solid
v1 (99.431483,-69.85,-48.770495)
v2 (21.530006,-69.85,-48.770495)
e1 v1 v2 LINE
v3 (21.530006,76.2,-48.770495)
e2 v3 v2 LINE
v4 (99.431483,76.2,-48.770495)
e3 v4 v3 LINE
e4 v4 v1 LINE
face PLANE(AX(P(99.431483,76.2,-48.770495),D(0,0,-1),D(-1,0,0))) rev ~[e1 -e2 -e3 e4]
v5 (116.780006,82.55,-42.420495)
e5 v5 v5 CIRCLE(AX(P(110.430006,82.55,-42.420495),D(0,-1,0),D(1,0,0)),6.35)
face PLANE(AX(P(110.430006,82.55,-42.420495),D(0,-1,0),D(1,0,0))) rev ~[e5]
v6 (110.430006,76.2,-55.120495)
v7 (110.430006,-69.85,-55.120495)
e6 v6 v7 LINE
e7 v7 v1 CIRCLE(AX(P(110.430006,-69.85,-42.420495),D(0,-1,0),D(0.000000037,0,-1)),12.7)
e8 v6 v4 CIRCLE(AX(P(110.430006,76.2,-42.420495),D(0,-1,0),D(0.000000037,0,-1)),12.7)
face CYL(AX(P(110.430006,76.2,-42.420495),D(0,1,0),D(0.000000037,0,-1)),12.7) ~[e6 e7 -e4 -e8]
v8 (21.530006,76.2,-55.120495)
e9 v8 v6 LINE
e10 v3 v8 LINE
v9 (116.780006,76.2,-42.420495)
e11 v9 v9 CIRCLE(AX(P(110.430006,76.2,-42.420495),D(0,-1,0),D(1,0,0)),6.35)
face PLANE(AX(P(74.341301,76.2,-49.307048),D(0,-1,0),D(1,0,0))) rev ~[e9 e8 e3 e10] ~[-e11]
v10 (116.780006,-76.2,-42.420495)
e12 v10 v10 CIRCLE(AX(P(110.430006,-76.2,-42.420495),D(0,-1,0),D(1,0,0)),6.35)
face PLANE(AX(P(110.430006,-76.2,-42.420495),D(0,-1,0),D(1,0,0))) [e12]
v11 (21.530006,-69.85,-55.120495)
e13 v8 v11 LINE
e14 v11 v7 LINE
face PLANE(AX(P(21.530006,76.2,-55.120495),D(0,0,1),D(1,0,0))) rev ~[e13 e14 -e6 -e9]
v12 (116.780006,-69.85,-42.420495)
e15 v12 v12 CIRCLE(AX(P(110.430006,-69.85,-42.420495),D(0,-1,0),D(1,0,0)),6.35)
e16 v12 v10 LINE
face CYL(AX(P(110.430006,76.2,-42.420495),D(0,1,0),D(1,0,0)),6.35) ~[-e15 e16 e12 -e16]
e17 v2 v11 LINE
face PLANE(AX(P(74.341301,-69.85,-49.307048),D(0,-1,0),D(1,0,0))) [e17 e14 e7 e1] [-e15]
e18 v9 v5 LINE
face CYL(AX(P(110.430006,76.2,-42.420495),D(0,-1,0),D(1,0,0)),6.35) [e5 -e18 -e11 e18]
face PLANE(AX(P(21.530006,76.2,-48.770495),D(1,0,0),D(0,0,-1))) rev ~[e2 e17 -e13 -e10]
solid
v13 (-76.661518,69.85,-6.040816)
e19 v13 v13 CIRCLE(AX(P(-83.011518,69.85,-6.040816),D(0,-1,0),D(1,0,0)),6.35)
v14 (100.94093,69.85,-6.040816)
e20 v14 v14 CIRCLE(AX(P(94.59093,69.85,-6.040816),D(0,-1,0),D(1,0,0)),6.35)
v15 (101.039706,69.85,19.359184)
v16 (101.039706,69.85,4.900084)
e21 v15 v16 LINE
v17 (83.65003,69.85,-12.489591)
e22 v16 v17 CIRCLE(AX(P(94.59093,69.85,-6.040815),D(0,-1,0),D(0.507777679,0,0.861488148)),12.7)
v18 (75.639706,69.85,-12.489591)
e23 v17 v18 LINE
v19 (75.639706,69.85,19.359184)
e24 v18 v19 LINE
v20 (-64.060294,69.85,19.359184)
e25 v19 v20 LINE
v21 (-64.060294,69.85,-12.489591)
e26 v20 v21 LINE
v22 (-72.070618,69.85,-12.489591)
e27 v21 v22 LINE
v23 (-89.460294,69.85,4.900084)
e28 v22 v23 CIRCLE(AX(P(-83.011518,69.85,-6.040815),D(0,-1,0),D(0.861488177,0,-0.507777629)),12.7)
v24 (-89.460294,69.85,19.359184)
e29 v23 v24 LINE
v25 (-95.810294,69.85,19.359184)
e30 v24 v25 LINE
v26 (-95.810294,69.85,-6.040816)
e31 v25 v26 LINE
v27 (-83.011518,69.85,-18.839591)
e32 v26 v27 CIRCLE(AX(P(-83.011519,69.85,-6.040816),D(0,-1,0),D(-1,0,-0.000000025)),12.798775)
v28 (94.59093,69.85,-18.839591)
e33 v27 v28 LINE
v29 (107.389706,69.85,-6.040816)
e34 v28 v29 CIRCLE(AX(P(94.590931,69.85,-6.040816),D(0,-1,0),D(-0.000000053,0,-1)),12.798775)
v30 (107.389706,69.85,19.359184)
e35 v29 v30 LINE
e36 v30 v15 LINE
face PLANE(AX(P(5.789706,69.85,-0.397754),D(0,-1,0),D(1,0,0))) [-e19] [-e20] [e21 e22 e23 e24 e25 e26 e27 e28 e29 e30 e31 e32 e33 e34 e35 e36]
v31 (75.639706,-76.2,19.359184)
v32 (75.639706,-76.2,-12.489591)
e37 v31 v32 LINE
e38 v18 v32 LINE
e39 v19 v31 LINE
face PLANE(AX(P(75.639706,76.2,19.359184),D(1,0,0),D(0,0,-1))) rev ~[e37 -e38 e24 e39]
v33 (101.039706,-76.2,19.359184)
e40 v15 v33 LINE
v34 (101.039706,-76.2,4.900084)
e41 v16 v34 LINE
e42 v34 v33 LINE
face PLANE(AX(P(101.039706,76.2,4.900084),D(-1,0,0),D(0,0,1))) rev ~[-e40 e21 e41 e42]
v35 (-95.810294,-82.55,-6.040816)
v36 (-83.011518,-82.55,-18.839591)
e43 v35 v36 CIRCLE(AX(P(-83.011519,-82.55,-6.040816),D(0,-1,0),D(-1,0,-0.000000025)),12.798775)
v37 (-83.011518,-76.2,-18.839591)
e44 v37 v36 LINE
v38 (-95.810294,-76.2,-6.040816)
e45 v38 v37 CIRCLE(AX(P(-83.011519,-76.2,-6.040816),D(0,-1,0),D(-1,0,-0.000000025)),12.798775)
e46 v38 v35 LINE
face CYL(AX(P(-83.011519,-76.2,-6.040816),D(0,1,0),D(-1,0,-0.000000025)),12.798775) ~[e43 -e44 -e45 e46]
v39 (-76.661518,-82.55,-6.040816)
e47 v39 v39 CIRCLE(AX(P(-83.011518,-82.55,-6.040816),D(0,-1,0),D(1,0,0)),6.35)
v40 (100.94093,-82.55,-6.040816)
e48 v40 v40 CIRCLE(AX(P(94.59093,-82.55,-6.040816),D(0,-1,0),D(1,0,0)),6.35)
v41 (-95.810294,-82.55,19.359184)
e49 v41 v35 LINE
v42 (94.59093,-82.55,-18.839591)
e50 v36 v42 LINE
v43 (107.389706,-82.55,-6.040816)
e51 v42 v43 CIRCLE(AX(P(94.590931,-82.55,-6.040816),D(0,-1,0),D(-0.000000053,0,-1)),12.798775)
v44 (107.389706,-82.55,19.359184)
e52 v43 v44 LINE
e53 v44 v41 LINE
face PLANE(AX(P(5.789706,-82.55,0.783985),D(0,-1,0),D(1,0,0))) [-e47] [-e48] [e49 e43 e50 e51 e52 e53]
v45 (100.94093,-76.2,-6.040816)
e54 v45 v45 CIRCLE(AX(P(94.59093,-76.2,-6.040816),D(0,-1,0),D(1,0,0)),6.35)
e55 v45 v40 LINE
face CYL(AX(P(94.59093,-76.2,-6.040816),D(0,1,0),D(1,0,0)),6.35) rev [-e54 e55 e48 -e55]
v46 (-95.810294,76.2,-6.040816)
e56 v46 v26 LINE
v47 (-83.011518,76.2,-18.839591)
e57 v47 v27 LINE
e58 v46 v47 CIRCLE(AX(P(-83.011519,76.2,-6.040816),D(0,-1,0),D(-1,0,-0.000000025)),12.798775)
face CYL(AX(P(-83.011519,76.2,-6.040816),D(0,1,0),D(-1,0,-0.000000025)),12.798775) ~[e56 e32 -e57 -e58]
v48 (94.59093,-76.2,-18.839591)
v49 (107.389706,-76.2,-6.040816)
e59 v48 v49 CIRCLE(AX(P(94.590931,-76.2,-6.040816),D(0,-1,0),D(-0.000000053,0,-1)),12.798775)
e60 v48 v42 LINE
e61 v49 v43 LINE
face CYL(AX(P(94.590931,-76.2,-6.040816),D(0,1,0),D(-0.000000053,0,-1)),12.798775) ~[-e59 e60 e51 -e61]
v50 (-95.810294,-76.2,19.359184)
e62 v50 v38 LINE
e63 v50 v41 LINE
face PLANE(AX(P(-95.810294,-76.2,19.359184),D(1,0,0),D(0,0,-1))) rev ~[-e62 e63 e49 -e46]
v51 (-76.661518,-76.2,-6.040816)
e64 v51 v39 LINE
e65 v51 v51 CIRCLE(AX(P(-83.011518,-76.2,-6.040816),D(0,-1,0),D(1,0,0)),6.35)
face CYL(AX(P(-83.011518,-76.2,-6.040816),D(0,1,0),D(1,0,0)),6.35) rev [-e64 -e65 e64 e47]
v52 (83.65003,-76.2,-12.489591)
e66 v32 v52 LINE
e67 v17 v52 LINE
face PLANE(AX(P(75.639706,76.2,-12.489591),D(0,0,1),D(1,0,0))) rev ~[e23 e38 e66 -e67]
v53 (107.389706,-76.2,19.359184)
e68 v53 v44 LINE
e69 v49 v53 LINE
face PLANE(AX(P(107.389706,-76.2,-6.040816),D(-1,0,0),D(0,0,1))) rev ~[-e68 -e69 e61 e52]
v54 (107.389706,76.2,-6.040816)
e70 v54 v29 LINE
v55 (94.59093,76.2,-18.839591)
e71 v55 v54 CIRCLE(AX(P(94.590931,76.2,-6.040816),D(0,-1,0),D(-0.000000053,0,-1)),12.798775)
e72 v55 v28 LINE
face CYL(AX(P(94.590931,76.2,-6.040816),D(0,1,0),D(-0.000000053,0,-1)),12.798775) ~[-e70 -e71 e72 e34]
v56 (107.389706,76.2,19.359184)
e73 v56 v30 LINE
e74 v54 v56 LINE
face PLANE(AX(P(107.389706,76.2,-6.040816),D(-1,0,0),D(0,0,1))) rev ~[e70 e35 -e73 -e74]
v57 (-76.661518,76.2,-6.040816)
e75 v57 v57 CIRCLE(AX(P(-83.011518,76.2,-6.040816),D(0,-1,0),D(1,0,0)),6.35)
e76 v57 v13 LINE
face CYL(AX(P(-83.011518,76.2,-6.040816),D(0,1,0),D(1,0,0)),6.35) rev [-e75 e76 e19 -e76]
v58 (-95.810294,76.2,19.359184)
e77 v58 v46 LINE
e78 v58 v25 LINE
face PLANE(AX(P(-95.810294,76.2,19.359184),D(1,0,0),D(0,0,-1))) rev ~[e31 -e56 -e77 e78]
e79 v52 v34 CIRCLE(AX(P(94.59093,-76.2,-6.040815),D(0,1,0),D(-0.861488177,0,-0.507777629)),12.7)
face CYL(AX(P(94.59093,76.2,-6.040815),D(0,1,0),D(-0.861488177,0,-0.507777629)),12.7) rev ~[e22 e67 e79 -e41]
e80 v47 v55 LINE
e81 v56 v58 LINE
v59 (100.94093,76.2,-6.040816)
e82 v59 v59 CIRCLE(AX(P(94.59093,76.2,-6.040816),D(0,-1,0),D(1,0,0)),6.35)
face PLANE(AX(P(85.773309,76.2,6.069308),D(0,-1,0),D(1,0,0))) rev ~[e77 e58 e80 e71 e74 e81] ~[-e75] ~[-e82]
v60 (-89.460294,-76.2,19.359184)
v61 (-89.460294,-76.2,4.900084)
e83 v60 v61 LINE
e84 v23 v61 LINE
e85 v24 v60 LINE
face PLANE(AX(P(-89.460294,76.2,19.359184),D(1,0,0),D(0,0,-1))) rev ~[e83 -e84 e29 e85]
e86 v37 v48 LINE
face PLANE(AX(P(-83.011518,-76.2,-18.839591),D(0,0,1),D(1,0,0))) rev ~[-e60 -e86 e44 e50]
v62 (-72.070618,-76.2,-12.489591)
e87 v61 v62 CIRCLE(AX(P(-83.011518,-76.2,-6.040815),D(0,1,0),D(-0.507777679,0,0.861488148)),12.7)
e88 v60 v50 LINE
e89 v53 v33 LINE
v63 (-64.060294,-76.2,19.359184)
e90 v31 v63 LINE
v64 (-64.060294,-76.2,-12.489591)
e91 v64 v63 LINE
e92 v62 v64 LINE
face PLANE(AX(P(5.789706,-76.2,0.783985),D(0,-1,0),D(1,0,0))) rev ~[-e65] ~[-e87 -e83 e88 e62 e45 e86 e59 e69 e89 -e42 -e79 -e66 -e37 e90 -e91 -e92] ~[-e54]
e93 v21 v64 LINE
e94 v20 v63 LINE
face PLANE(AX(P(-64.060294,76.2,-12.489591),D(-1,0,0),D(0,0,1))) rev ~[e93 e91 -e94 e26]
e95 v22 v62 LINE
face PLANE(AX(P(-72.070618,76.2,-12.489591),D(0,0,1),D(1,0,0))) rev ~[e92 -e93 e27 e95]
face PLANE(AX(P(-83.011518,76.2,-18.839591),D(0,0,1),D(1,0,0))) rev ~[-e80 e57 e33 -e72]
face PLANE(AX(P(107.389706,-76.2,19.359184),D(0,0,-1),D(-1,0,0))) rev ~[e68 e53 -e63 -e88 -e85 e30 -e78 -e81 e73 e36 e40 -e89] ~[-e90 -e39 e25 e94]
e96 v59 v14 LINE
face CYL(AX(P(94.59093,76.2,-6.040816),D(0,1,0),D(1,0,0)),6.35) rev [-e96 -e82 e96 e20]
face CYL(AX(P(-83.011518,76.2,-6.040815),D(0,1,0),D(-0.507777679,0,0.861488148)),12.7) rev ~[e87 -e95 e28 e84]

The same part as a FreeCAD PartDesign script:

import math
import FreeCAD as App
import Part
import Sketcher

V = App.Vector
Q = App.Units.Quantity

doc = App.newDocument("Part")
body = doc.addObject("PartDesign::Body", "Body")

# Sketch on XZ plane
sketch1 = body.newObject("Sketcher::SketchObject", "Sketch")
sketch1.AttachmentSupport = (doc.getObject("XZ_Plane"), [""])
sketch1.MapMode = "FlatFace"
sketch1.AttachmentOffset = App.Placement(V(0, 0, -3 * 25.4), App.Rotation())
sketch1.addGeometry([
    Part.LineSegment(V(-89, 19, 0), V(-96, 19, 0)),  # 0
    Part.LineSegment(V(-96, 19, 0), V(-96, -6, 0)),  # 1
    Part.ArcOfCircle(Part.Circle(V(-83, -6, 0), V(0, 0, 1), 13), math.radians(-180), math.radians(-90)),  # 2
    Part.LineSegment(V(-83, -19, 0), V(95, -19, 0)),  # 3
    Part.ArcOfCircle(Part.Circle(V(95, -6, 0), V(0, 0, 1), 13), math.radians(-90), math.radians(0)),  # 4
    Part.LineSegment(V(107, -6, 0), V(107, 19, 0)),  # 5
    Part.LineSegment(V(107, 19, 0), V(101, 19, 0)),  # 6
    Part.LineSegment(V(101, 19, 0), V(101, 5, 0)),  # 7
    Part.ArcOfCircle(Part.Circle(V(95, -6, 0), V(0, 0, 1), 13), math.radians(59), math.radians(211)),  # 8
    Part.LineSegment(V(84, -12, 0), V(76, -12, 0)),  # 9
    Part.LineSegment(V(76, -12, 0), V(76, 19, 0)),  # 10
    Part.LineSegment(V(76, 19, 0), V(-64, 19, 0)),  # 11
    Part.LineSegment(V(-64, 19, 0), V(-64, -12, 0)),  # 12
    Part.LineSegment(V(-64, -12, 0), V(-72, -12, 0)),  # 13
    Part.ArcOfCircle(Part.Circle(V(-83, -6, 0), V(0, 0, 1), 13), math.radians(-31), math.radians(121)),  # 14
    Part.LineSegment(V(-89, 5, 0), V(-89, 19, 0)),  # 15
    Part.Circle(V(-83, -6, 0), V(0, 0, 1), 6),  # 16
    Part.Circle(V(95, -6, 0), V(0, 0, 1), 6),  # 17
], False)
sketch1.addConstraint([
    Sketcher.Constraint("Coincident", 0, 2, 1, 1),
    Sketcher.Constraint("Tangent", 1, 2, 2, 1),
    Sketcher.Constraint("Tangent", 2, 2, 3, 1),
    Sketcher.Constraint("Tangent", 3, 2, 4, 1),
    Sketcher.Constraint("Tangent", 4, 2, 5, 1),
    Sketcher.Constraint("Coincident", 5, 2, 6, 1),
    Sketcher.Constraint("Coincident", 6, 2, 7, 1),
    Sketcher.Constraint("Coincident", 7, 2, 8, 1),
    Sketcher.Constraint("Coincident", 8, 2, 9, 1),
    Sketcher.Constraint("Coincident", 9, 2, 10, 1),
    Sketcher.Constraint("Coincident", 10, 2, 11, 1),
    Sketcher.Constraint("Coincident", 11, 2, 12, 1),
    Sketcher.Constraint("Coincident", 12, 2, 13, 1),
    Sketcher.Constraint("Coincident", 13, 2, 14, 1),
    Sketcher.Constraint("Coincident", 14, 2, 15, 1),
    Sketcher.Constraint("Coincident", 15, 2, 0, 1),
    Sketcher.Constraint("Horizontal", 0),
    Sketcher.Constraint("Vertical", 1),
    Sketcher.Constraint("Horizontal", 3),
    Sketcher.Constraint("Vertical", 5),
    Sketcher.Constraint("Horizontal", 6),
    Sketcher.Constraint("Vertical", 7),
    Sketcher.Constraint("Horizontal", 9),
    Sketcher.Constraint("Vertical", 10),
    Sketcher.Constraint("Horizontal", 11),
    Sketcher.Constraint("Vertical", 12),
    Sketcher.Constraint("Horizontal", 13),
    Sketcher.Constraint("Vertical", 15),
    Sketcher.Constraint("Coincident", 8, 3, 4, 3),
    Sketcher.Constraint("Coincident", 14, 3, 2, 3),
    Sketcher.Constraint("Coincident", 16, 3, 2, 3),
    Sketcher.Constraint("Coincident", 17, 3, 4, 3),
    Sketcher.Constraint("Equal", 2, 4),
    Sketcher.Constraint("Equal", 8, 14),
    Sketcher.Constraint("Equal", 16, 17),
    Sketcher.Constraint("Horizontal", 0, 2, 5, 2),
    Sketcher.Constraint("Horizontal", 6, 2, 10, 2),
    Sketcher.Constraint("Horizontal", 9, 2, 12, 2),
    Sketcher.Constraint("Horizontal", 7, 2, 14, 2),
    Sketcher.Constraint("Equal", 9, 13),
    Sketcher.Constraint("Diameter", 16, Q("0.5 in")),
    Sketcher.Constraint("Radius", 8, Q("0.5 in")),
    Sketcher.Constraint("DistanceY", 1, 2, 1, 1, Q("1 in")),
    Sketcher.Constraint("DistanceX", 11, 2, 11, 1, Q("5.5 in")),
    Sketcher.Constraint("DistanceX", 10, 2, 6, 2, Q("1 in")),
    Sketcher.Constraint("DistanceX", 0, 2, 0, 1, Q("0.25 in")),
    Sketcher.Constraint("DistanceY", 3, 2, 8, 2, Q("0.25 in")),
    Sketcher.Constraint("DistanceY", 7, 2, 7, 1, Q("14.4591 mm")),
    Sketcher.Constraint("DistanceX", 2, 3, -1, 1, Q("83.011519 mm")),
    Sketcher.Constraint("DistanceY", 2, 2, -1, 1, Q("18.839591 mm")),
])
pad1 = body.newObject("PartDesign::Pad", "Pad")
pad1.Profile = sketch1
pad1.Length = Q("0.25 in")

# Sketch on XZ plane
sketch2 = body.newObject("Sketcher::SketchObject", "Sketch001")
sketch2.AttachmentSupport = (doc.getObject("XZ_Plane"), [""])
sketch2.MapMode = "FlatFace"
sketch2.AttachmentOffset = App.Placement(V(0, 0, -3 * 25.4), App.Rotation())
sketch2.addGeometry([
    Part.LineSegment(V(-64, 19, 0), V(-89, 19, 0)),  # 0
    Part.LineSegment(V(-89, 19, 0), V(-89, 5, 0)),  # 1
    Part.ArcOfCircle(Part.Circle(V(-83, -6, 0), V(0, 0, 1), 13), math.radians(-31), math.radians(121)),  # 2
    Part.LineSegment(V(-72, -12, 0), V(-64, -12, 0)),  # 3
    Part.LineSegment(V(-64, -12, 0), V(-64, 19, 0)),  # 4
], False)
sketch2.addConstraint([
    Sketcher.Constraint("Coincident", 0, 2, 1, 1),
    Sketcher.Constraint("Coincident", 1, 2, 2, 2),
    Sketcher.Constraint("Coincident", 2, 1, 3, 1),
    Sketcher.Constraint("Coincident", 3, 2, 4, 1),
    Sketcher.Constraint("Coincident", 4, 2, 0, 1),
    Sketcher.Constraint("Horizontal", 0),
    Sketcher.Constraint("Vertical", 1),
    Sketcher.Constraint("Horizontal", 3),
    Sketcher.Constraint("Vertical", 4),
    Sketcher.Constraint("Radius", 2, Q("0.5 in")),
    Sketcher.Constraint("DistanceX", 0, 2, 0, 1, Q("1 in")),
    Sketcher.Constraint("DistanceY", 2, 3, 0, 2, Q("1 in")),
    Sketcher.Constraint("DistanceY", 1, 2, 1, 1, Q("14.4591 mm")),
    Sketcher.Constraint("DistanceX", 2, 3, 2, 1, Q("10.9409 mm")),
    Sketcher.Constraint("DistanceY", 2, 1, -1, 1, Q("12.489591 mm")),
    Sketcher.Constraint("DistanceX", 2, 3, -1, 1, Q("83.011518 mm")),
])
pad2 = body.newObject("PartDesign::Pad", "Pad001")
pad2.Profile = sketch2
pad2.Length = Q("6 in")

# Sketch on XZ plane
sketch3 = body.newObject("Sketcher::SketchObject", "Sketch002")
sketch3.AttachmentSupport = (doc.getObject("XZ_Plane"), [""])
sketch3.MapMode = "FlatFace"
sketch3.AttachmentOffset = App.Placement(V(0, 0, -3 * 25.4), App.Rotation())
sketch3.addGeometry([
    Part.LineSegment(V(101, 19, 0), V(76, 19, 0)),  # 0
    Part.LineSegment(V(76, 19, 0), V(76, -12, 0)),  # 1
    Part.LineSegment(V(76, -12, 0), V(84, -12, 0)),  # 2
    Part.ArcOfCircle(Part.Circle(V(95, -6, 0), V(0, 0, 1), 13), math.radians(59), math.radians(211)),  # 3
    Part.LineSegment(V(101, 5, 0), V(101, 19, 0)),  # 4
], False)
sketch3.addConstraint([
    Sketcher.Constraint("Coincident", 0, 2, 1, 1),
    Sketcher.Constraint("Coincident", 1, 2, 2, 1),
    Sketcher.Constraint("Coincident", 2, 2, 3, 2),
    Sketcher.Constraint("Coincident", 3, 1, 4, 1),
    Sketcher.Constraint("Coincident", 4, 2, 0, 1),
    Sketcher.Constraint("Horizontal", 0),
    Sketcher.Constraint("Vertical", 1),
    Sketcher.Constraint("Horizontal", 2),
    Sketcher.Constraint("Vertical", 4),
    Sketcher.Constraint("Radius", 3, Q("0.5 in")),
    Sketcher.Constraint("DistanceX", 0, 2, 0, 1, Q("1 in")),
    Sketcher.Constraint("DistanceY", 3, 3, 0, 2, Q("1 in")),
    Sketcher.Constraint("DistanceY", 4, 1, 4, 2, Q("14.4591 mm")),
    Sketcher.Constraint("DistanceX", 2, 2, 3, 3, Q("10.9409 mm")),
    Sketcher.Constraint("DistanceX", -1, 1, 3, 3, Q("94.59093 mm")),
    Sketcher.Constraint("DistanceY", 1, 2, -1, 1, Q("12.489591 mm")),
])
pad3 = body.newObject("PartDesign::Pad", "Pad002")
pad3.Profile = sketch3
pad3.Length = Q("6 in")

# Sketch on XZ plane
sketch4 = body.newObject("Sketcher::SketchObject", "Sketch003")
sketch4.AttachmentSupport = (doc.getObject("XZ_Plane"), [""])
sketch4.MapMode = "FlatFace"
sketch4.AttachmentOffset = App.Placement(V(0, 0, 3 * 25.4), App.Rotation())
sketch4.addGeometry([
    Part.LineSegment(V(-96, 19, 0), V(-96, -6, 0)),  # 0
    Part.ArcOfCircle(Part.Circle(V(-83, -6, 0), V(0, 0, 1), 13), math.radians(-180), math.radians(-90)),  # 1
    Part.LineSegment(V(-83, -19, 0), V(95, -19, 0)),  # 2
    Part.ArcOfCircle(Part.Circle(V(95, -6, 0), V(0, 0, 1), 13), math.radians(-90), math.radians(0)),  # 3
    Part.LineSegment(V(107, -6, 0), V(107, 19, 0)),  # 4
    Part.LineSegment(V(107, 19, 0), V(-96, 19, 0)),  # 5
    Part.Circle(V(-83, -6, 0), V(0, 0, 1), 6),  # 6
    Part.Circle(V(95, -6, 0), V(0, 0, 1), 6),  # 7
], False)
sketch4.addConstraint([
    Sketcher.Constraint("Tangent", 0, 2, 1, 1),
    Sketcher.Constraint("Tangent", 1, 2, 2, 1),
    Sketcher.Constraint("Tangent", 2, 2, 3, 1),
    Sketcher.Constraint("Tangent", 3, 2, 4, 1),
    Sketcher.Constraint("Coincident", 4, 2, 5, 1),
    Sketcher.Constraint("Coincident", 5, 2, 0, 1),
    Sketcher.Constraint("Vertical", 0),
    Sketcher.Constraint("Horizontal", 2),
    Sketcher.Constraint("Vertical", 4),
    Sketcher.Constraint("Horizontal", 5),
    Sketcher.Constraint("Coincident", 6, 3, 1, 3),
    Sketcher.Constraint("Coincident", 7, 3, 3, 3),
    Sketcher.Constraint("Equal", 1, 3),
    Sketcher.Constraint("Equal", 6, 7),
    Sketcher.Constraint("Diameter", 6, Q("0.5 in")),
    Sketcher.Constraint("DistanceX", 5, 2, 5, 1, Q("8 in")),
    Sketcher.Constraint("DistanceY", 0, 2, 0, 1, Q("1 in")),
    Sketcher.Constraint("Radius", 1, Q("12.798775 mm")),
    Sketcher.Constraint("DistanceX", 1, 3, -1, 1, Q("83.011519 mm")),
    Sketcher.Constraint("DistanceY", 1, 2, -1, 1, Q("18.839591 mm")),
])
pad4 = body.newObject("PartDesign::Pad", "Pad003")
pad4.Profile = sketch4
pad4.Length = Q("0.25 in")
body2 = doc.addObject("PartDesign::Body", "Body001")

# Sketch on XZ plane
sketch5 = body2.newObject("Sketcher::SketchObject", "Sketch004")
sketch5.AttachmentSupport = (doc.getObject("XZ_Plane001"), [""])
sketch5.MapMode = "FlatFace"
sketch5.AttachmentOffset = App.Placement(V(0, 0, -3 * 25.4), App.Rotation())
sketch5.addGeometry([
    Part.LineSegment(V(22, -55, 0), V(110, -55, 0)),  # 0
    Part.ArcOfCircle(Part.Circle(V(110, -42, 0), V(0, 0, 1), 13), math.radians(-90), math.radians(210)),  # 1
    Part.LineSegment(V(99, -49, 0), V(22, -49, 0)),  # 2
    Part.LineSegment(V(22, -49, 0), V(22, -55, 0)),  # 3
    Part.Circle(V(110, -42, 0), V(0, 0, 1), 6),  # 4
], False)
sketch5.addConstraint([
    Sketcher.Constraint("Tangent", 0, 2, 1, 1),
    Sketcher.Constraint("Coincident", 1, 2, 2, 1),
    Sketcher.Constraint("Coincident", 2, 2, 3, 1),
    Sketcher.Constraint("Coincident", 3, 2, 0, 1),
    Sketcher.Constraint("Horizontal", 0),
    Sketcher.Constraint("Horizontal", 2),
    Sketcher.Constraint("Vertical", 3),
    Sketcher.Constraint("Coincident", 4, 3, 1, 3),
    Sketcher.Constraint("Diameter", 4, Q("0.5 in")),
    Sketcher.Constraint("Radius", 1, Q("0.5 in")),
    Sketcher.Constraint("DistanceX", 0, 1, 0, 2, Q("3.5 in")),
    Sketcher.Constraint("DistanceY", 3, 2, 3, 1, Q("0.25 in")),
    Sketcher.Constraint("DistanceX", -1, 1, 1, 3, Q("110.430006 mm")),
    Sketcher.Constraint("DistanceY", 1, 3, -1, 1, Q("42.420495 mm")),
])
pad5 = body2.newObject("PartDesign::Pad", "Pad004")
pad5.Profile = sketch5
pad5.Length = Q("5.75 in")

# Sketch on XZ plane
sketch6 = body2.newObject("Sketcher::SketchObject", "Sketch005")
sketch6.AttachmentSupport = (doc.getObject("XZ_Plane001"), [""])
sketch6.MapMode = "FlatFace"
sketch6.AttachmentOffset = App.Placement(V(0, 0, -3 * 25.4), App.Rotation())
sketch6.addGeometry(Part.Circle(V(110, -42, 0), V(0, 0, 1), 6), False)
sketch6.addConstraint([
    Sketcher.Constraint("Diameter", 0, Q("0.5 in")),
    Sketcher.Constraint("DistanceX", -1, 1, 0, 3, Q("110.430006 mm")),
    Sketcher.Constraint("DistanceY", 0, 3, -1, 1, Q("42.420495 mm")),
])
pad6 = body2.newObject("PartDesign::Pad", "Pad005")
pad6.Profile = sketch6
pad6.Type = "TwoLengths"
pad6.Length = Q("6 in")
pad6.Length2 = Q("0.25 in")

doc.recompute()
